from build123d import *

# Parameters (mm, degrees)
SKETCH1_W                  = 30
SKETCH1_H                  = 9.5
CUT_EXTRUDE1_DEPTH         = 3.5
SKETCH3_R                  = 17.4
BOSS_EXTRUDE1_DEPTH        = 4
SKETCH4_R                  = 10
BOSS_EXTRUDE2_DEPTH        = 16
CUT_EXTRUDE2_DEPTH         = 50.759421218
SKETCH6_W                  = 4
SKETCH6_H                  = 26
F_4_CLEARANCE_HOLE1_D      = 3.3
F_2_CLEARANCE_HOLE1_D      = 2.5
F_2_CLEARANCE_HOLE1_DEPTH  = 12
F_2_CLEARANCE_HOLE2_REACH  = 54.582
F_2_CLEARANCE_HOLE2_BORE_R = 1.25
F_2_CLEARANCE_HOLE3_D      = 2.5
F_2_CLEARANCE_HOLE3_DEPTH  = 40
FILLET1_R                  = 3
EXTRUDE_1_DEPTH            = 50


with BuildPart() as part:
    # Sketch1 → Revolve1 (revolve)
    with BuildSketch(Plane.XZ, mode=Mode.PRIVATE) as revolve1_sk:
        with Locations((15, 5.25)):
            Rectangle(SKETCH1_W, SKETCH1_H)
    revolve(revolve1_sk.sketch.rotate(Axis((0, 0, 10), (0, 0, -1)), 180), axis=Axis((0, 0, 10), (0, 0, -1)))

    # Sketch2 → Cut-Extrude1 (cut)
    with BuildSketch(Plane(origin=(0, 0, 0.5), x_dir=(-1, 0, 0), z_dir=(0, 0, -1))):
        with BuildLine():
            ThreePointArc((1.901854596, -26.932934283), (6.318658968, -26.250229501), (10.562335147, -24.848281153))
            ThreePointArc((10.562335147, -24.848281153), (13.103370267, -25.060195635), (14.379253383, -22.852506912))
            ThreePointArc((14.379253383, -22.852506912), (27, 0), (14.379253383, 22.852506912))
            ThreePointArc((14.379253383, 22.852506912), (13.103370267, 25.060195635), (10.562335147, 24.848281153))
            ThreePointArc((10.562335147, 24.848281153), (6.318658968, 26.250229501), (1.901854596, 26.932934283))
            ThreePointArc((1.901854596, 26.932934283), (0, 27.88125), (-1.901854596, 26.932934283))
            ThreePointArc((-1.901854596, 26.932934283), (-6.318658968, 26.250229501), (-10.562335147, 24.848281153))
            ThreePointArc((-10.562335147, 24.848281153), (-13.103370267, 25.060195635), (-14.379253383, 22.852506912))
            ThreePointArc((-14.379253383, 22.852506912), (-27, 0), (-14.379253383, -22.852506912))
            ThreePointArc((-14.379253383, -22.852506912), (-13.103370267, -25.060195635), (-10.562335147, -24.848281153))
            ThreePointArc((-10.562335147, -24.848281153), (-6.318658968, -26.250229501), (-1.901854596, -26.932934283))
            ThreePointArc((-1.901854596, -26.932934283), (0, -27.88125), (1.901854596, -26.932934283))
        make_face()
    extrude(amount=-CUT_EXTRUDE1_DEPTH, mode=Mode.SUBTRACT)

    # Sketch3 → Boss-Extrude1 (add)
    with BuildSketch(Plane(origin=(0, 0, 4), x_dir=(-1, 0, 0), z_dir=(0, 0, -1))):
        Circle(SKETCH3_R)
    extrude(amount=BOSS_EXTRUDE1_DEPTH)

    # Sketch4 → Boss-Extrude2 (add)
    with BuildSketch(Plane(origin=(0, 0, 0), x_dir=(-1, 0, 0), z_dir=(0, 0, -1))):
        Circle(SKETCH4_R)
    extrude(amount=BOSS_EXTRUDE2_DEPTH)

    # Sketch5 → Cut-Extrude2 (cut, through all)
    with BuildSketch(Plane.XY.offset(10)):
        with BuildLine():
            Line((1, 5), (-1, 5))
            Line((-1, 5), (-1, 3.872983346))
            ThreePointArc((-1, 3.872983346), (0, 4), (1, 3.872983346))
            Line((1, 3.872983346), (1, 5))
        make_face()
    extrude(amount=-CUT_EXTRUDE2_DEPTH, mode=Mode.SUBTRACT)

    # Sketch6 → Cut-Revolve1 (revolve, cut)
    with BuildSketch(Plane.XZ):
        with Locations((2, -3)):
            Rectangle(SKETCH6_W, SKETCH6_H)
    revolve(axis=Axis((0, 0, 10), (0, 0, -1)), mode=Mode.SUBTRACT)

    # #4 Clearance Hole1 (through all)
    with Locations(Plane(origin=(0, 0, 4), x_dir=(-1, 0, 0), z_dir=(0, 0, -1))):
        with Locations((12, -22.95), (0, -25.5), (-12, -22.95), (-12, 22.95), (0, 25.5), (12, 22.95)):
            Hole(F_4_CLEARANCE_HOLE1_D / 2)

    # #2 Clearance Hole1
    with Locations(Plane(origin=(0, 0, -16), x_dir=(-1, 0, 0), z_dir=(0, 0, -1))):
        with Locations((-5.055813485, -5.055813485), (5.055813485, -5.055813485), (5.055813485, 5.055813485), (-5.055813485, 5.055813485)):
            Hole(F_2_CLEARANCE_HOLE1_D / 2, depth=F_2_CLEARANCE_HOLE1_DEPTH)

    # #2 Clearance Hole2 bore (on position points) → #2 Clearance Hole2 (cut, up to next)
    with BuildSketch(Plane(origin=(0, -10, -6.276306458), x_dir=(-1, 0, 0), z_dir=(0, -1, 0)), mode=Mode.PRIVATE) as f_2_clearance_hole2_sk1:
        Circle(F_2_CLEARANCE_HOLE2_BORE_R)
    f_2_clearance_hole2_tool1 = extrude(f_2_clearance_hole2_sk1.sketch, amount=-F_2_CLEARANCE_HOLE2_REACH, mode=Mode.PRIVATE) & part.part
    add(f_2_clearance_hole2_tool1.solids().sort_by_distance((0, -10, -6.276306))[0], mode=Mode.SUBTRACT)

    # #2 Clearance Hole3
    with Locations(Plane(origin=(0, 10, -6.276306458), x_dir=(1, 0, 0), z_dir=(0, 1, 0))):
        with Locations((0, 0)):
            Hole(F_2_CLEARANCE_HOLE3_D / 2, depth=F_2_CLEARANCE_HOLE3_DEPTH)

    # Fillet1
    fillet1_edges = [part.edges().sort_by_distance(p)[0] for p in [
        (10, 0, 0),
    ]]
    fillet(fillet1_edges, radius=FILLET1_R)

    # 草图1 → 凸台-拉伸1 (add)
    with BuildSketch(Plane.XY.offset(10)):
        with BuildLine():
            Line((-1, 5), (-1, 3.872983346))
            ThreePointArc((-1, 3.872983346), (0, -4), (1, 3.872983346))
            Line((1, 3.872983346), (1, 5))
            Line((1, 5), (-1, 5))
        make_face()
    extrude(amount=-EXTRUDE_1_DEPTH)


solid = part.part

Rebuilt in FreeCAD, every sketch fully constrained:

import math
import FreeCAD as App
import Part
import Sketcher
from FreeCAD import Vector


def edges_at(feature, points):
    """Names of the edges that pass closest to the given points."""
    edges = feature.Shape.Edges
    near = lambda p: min(range(len(edges)), key=lambda i: edges[i].distToShape(Part.Vertex(*p))[0])
    return sorted({f"Edge{near(p) + 1}" for p in points})


def add_polygon(sketch, points):
    """Adds a closed chain of lines whose ends are joined by coincident constraints."""
    first, n = sketch.GeometryCount, len(points)
    for a, b in zip(points, points[1:] + points[:1]):
        sketch.addGeometry(Part.LineSegment(App.Vector(*a, 0), App.Vector(*b, 0)), False)
    for i in range(n):
        sketch.addConstraint(Sketcher.Constraint("Coincident", first + i, 2, first + (i + 1) % n, 1))

doc = App.newDocument("Part")
body = doc.addObject("PartDesign::Body", "Body")

sketch1 = body.newObject("Sketcher::SketchObject", "Sketch")
sketch1.AttachmentSupport = (doc.getObject("XZ_Plane"), [""])
sketch1.MapMode = "FlatFace"
add_polygon(sketch1, [(0, 10), (0, 0), (30, 0), (30, 10)])
sketch1.addConstraint([
    Sketcher.Constraint("Vertical", 0),
    Sketcher.Constraint("Horizontal", 1),
    Sketcher.Constraint("Vertical", 2),
    Sketcher.Constraint("Horizontal", 3),
    Sketcher.Constraint("PointOnObject", 0, 2, -2),
    Sketcher.Constraint("DistanceX", 1, 1, 1, 2, 30.0),
    Sketcher.Constraint("DistanceY", 0, 2, 0, 1, 9.5),
    Sketcher.Constraint("DistanceY", -1, 1, 2, 2, 10.0),
])
revolution = body.newObject("PartDesign::Revolution", "Revolution")
revolution.Profile = sketch1
revolution.ReferenceAxis = (sketch1, ["V_Axis"])
revolution.Angle = 360

sketch2 = body.newObject("Sketcher::SketchObject", "Sketch001")
sketch2.AttachmentSupport = (doc.getObject("XY_Plane"), [""])
sketch2.MapMode = "FlatFace"
sketch2.AttachmentOffset = App.Placement(Vector(0, 0, 0.5), App.Rotation())
sketch2.addGeometry([
    Part.ArcOfCircle(Part.Circle(Vector(0, 0, 0), Vector(0, 0, 1), 27), math.radians(-113.03), math.radians(-94.04)),
    Part.ArcOfCircle(Part.Circle(Vector(-12, -22.9, 0), Vector(0, 0, 1), 2.4), math.radians(178), math.radians(307)),
    Part.ArcOfCircle(Part.Circle(Vector(0, 0, 0), Vector(0, 0, 1), 27), math.radians(122), math.radians(238)),
    Part.ArcOfCircle(Part.Circle(Vector(-12, 22.9, 0), Vector(0, 0, 1), 2.4), math.radians(53), math.radians(182)),
    Part.ArcOfCircle(Part.Circle(Vector(0, 0, 0), Vector(0, 0, 1), 27), math.radians(94.04), math.radians(113.03)),
    Part.ArcOfCircle(Part.Circle(Vector(0, 25.5, 0), Vector(0, 0, 1), 2.4), math.radians(37), math.radians(143)),
    Part.ArcOfCircle(Part.Circle(Vector(0, 0, 0), Vector(0, 0, 1), 27), math.radians(66.97), math.radians(85.96)),
    Part.ArcOfCircle(Part.Circle(Vector(12, 22.9, 0), Vector(0, 0, 1), 2.4), math.radians(-2), math.radians(127)),
    Part.ArcOfCircle(Part.Circle(Vector(0, 0, 0), Vector(0, 0, 1), 27), math.radians(-58), math.radians(58)),
    Part.ArcOfCircle(Part.Circle(Vector(12, -22.9, 0), Vector(0, 0, 1), 2.4), math.radians(-127), math.radians(2)),
    Part.ArcOfCircle(Part.Circle(Vector(0, 0, 0), Vector(0, 0, 1), 27), math.radians(-85.96), math.radians(-66.97)),
    Part.ArcOfCircle(Part.Circle(Vector(0, -25.5, 0), Vector(0, 0, 1), 2.4), math.radians(-143), math.radians(-37)),
], False)
sketch2.addConstraint([
    Sketcher.Constraint("Coincident", 0, 1, 1, 2),
    Sketcher.Constraint("Coincident", 1, 1, 2, 2),
    Sketcher.Constraint("Coincident", 2, 1, 3, 2),
    Sketcher.Constraint("Coincident", 3, 1, 4, 2),
    Sketcher.Constraint("Coincident", 4, 1, 5, 2),
    Sketcher.Constraint("Coincident", 5, 1, 6, 2),
    Sketcher.Constraint("Coincident", 6, 1, 7, 2),
    Sketcher.Constraint("Coincident", 7, 1, 8, 2),
    Sketcher.Constraint("Coincident", 8, 1, 9, 2),
    Sketcher.Constraint("Coincident", 9, 1, 10, 2),
    Sketcher.Constraint("Coincident", 10, 1, 11, 2),
    Sketcher.Constraint("Coincident", 11, 1, 0, 2),
    Sketcher.Constraint("Coincident", 0, 3, -1, 1),
    Sketcher.Constraint("Coincident", 2, 3, -1, 1),
    Sketcher.Constraint("Coincident", 4, 3, -1, 1),
    Sketcher.Constraint("Coincident", 6, 3, -1, 1),
    Sketcher.Constraint("Coincident", 8, 3, -1, 1),
    Sketcher.Constraint("Coincident", 10, 3, -1, 1),
    Sketcher.Constraint("Equal", 0, 2),
    Sketcher.Constraint("Equal", 1, 3),
    Sketcher.Constraint("Equal", 2, 4),
    Sketcher.Constraint("Equal", 3, 5),
    Sketcher.Constraint("Equal", 4, 6),
    Sketcher.Constraint("Equal", 5, 7),
    Sketcher.Constraint("Equal", 6, 8),
    Sketcher.Constraint("Equal", 7, 9),
    Sketcher.Constraint("Equal", 8, 10),
    Sketcher.Constraint("Equal", 9, 11),
    Sketcher.Constraint("Symmetric", 1, 3, 7, 3, -1, 1),
    Sketcher.Constraint("Symmetric", 3, 3, 9, 3, -1, 1),
    Sketcher.Constraint("Symmetric", 5, 3, 11, 3, -1, 1),
    Sketcher.Constraint("Symmetric", 3, 3, 7, 3, -2),
    Sketcher.Constraint("PointOnObject", 5, 3, -2),
    Sketcher.Constraint("Radius", 0, 27.0),
    Sketcher.Constraint("DistanceX", 1, 3, -1, 1, 12.0),
    Sketcher.Constraint("DistanceY", -1, 1, 5, 3, 25.5),
    Sketcher.Constraint("DistanceY", 1, 3, 3, 3, 45.9),
    Sketcher.Constraint("Radius", 1, 2.38125),
])
pocket1 = body.newObject("PartDesign::Pocket", "Pocket")
pocket1.Profile = sketch2
pocket1.Length = 3.5
pocket1.Reversed = True

sketch3 = body.newObject("Sketcher::SketchObject", "Sketch002")
sketch3.AttachmentSupport = (doc.getObject("XY_Plane"), [""])
sketch3.MapMode = "FlatFace"
sketch3.AttachmentOffset = App.Placement(Vector(0, 0, 4), App.Rotation())
sketch3.addGeometry(Part.Circle(Vector(0, 0, 0), Vector(0, 0, 1), 17), False)
sketch3.addConstraint([
    Sketcher.Constraint("Coincident", 0, 3, -1, 1),
    Sketcher.Constraint("Diameter", 0, 34.8),
])
pad1 = body.newObject("PartDesign::Pad", "Pad")
pad1.Profile = sketch3
pad1.Length = 4
pad1.Reversed = True

sketch4 = body.newObject("Sketcher::SketchObject", "Sketch003")
sketch4.AttachmentSupport = (doc.getObject("XY_Plane"), [""])
sketch4.MapMode = "FlatFace"
sketch4.addGeometry(Part.Circle(Vector(0, 0, 0), Vector(0, 0, 1), 10), False)
sketch4.addConstraint([
    Sketcher.Constraint("Coincident", 0, 3, -1, 1),
    Sketcher.Constraint("Diameter", 0, 20.0),
])
pad2 = body.newObject("PartDesign::Pad", "Pad001")
pad2.Profile = sketch4
pad2.Length = 16
pad2.Reversed = True

sketch5 = body.newObject("Sketcher::SketchObject", "Sketch004")
sketch5.AttachmentSupport = (doc.getObject("XY_Plane"), [""])
sketch5.MapMode = "FlatFace"
sketch5.AttachmentOffset = App.Placement(Vector(0, 0, 10), App.Rotation())
sketch5.addGeometry([
    Part.LineSegment(Vector(1, 5, 0), Vector(-1, 5, 0)),
    Part.LineSegment(Vector(-1, 5, 0), Vector(-1, 3.9, 0)),
    Part.ArcOfCircle(Part.Circle(Vector(0, 0, 0), Vector(0, 0, 1), 4), math.radians(76), math.radians(104)),
    Part.LineSegment(Vector(1, 3.9, 0), Vector(1, 5, 0)),
], False)
sketch5.addConstraint([
    Sketcher.Constraint("Coincident", 0, 2, 1, 1),
    Sketcher.Constraint("Coincident", 1, 2, 2, 2),
    Sketcher.Constraint("Coincident", 2, 1, 3, 1),
    Sketcher.Constraint("Coincident", 3, 2, 0, 1),
    Sketcher.Constraint("Horizontal", 0),
    Sketcher.Constraint("Vertical", 1),
    Sketcher.Constraint("Vertical", 3),
    Sketcher.Constraint("Coincident", 2, 3, -1, 1),
    Sketcher.Constraint("Horizontal", 1, 2, 2, 1),
    Sketcher.Constraint("Radius", 2, 4.0),
    Sketcher.Constraint("DistanceX", 0, 2, 0, 1, 2.0),
    Sketcher.Constraint("DistanceY", -1, 1, 0, 2, 5.0),
])
pocket2 = body.newObject("PartDesign::Pocket", "Pocket001")
pocket2.Profile = sketch5
pocket2.Type = "ThroughAll"

sketch6 = body.newObject("Sketcher::SketchObject", "Sketch005")
sketch6.AttachmentSupport = (doc.getObject("XZ_Plane"), [""])
sketch6.MapMode = "FlatFace"
add_polygon(sketch6, [(0, 10), (0, -16), (4, -16), (4, 10)])
sketch6.addConstraint([
    Sketcher.Constraint("Vertical", 0),
    Sketcher.Constraint("Horizontal", 1),
    Sketcher.Constraint("Vertical", 2),
    Sketcher.Constraint("Horizontal", 3),
    Sketcher.Constraint("PointOnObject", 0, 2, -2),
    Sketcher.Constraint("DistanceX", 1, 1, 1, 2, 4.0),
    Sketcher.Constraint("DistanceY", 0, 2, 0, 1, 26.0),
    Sketcher.Constraint("DistanceY", 0, 2, -1, 1, 16.0),
])
groove = body.newObject("PartDesign::Groove", "Groove")
groove.Profile = sketch6
groove.ReferenceAxis = (sketch6, ["V_Axis"])
groove.Angle = 360

sketch7 = body.newObject("Sketcher::SketchObject", "Sketch006")
sketch7.AttachmentSupport = (doc.getObject("XY_Plane"), [""])
sketch7.MapMode = "FlatFace"
sketch7.AttachmentOffset = App.Placement(Vector(0, 0, 4), App.Rotation())
sketch7.addGeometry([
    Part.Circle(Vector(-12, -22.9, 0), Vector(0, 0, 1), 1.6),
    Part.Circle(Vector(0, -25.5, 0), Vector(0, 0, 1), 1.6),
    Part.Circle(Vector(12, -22.9, 0), Vector(0, 0, 1), 1.6),
    Part.Circle(Vector(12, 22.9, 0), Vector(0, 0, 1), 1.6),
    Part.Circle(Vector(0, 25.5, 0), Vector(0, 0, 1), 1.6),
    Part.Circle(Vector(-12, 22.9, 0), Vector(0, 0, 1), 1.6),
], False)
sketch7.addConstraint([
    Sketcher.Constraint("Equal", 0, 1),
    Sketcher.Constraint("Equal", 1, 2),
    Sketcher.Constraint("Equal", 2, 3),
    Sketcher.Constraint("Equal", 3, 4),
    Sketcher.Constraint("Equal", 4, 5),
    Sketcher.Constraint("Symmetric", 0, 3, 3, 3, -1, 1),
    Sketcher.Constraint("Symmetric", 1, 3, 4, 3, -1, 1),
    Sketcher.Constraint("Symmetric", 2, 3, 5, 3, -1, 1),
    Sketcher.Constraint("Symmetric", 0, 3, 2, 3, -2),
    Sketcher.Constraint("PointOnObject", 1, 3, -2),
    Sketcher.Constraint("Diameter", 0, 3.3),
    Sketcher.Constraint("DistanceX", 0, 3, -1, 1, 12.0),
    Sketcher.Constraint("DistanceY", 1, 3, 4, 3, 51.0),
    Sketcher.Constraint("DistanceY", 2, 3, 3, 3, 45.9),
])
doc.recompute()
hole = body.newObject("PartDesign::Hole", "Hole")
hole.Profile = sketch7
hole.ThreadType = "None"
hole.Diameter = 3.3
hole.DepthType = "ThroughAll"
hole.Reversed = True

sketch8 = body.newObject("Sketcher::SketchObject", "Sketch007")
sketch8.AttachmentSupport = (doc.getObject("XY_Plane"), [""])
sketch8.MapMode = "FlatFace"
sketch8.AttachmentOffset = App.Placement(Vector(0, 0, -16), App.Rotation())
sketch8.addGeometry([
    Part.Circle(Vector(5.1, -5.1, 0), Vector(0, 0, 1), 1.2),
    Part.Circle(Vector(-5.1, -5.1, 0), Vector(0, 0, 1), 1.2),
    Part.Circle(Vector(-5.1, 5.1, 0), Vector(0, 0, 1), 1.2),
    Part.Circle(Vector(5.1, 5.1, 0), Vector(0, 0, 1), 1.2),
], False)
sketch8.addConstraint([
    Sketcher.Constraint("Equal", 0, 1),
    Sketcher.Constraint("Equal", 1, 2),
    Sketcher.Constraint("Equal", 2, 3),
    Sketcher.Constraint("Symmetric", 0, 3, 2, 3, -1, 1),
    Sketcher.Constraint("Symmetric", 1, 3, 3, 3, -1, 1),
    Sketcher.Constraint("Symmetric", 0, 3, 1, 3, -2),
    Sketcher.Constraint("Diameter", 0, 2.5),
    Sketcher.Constraint("DistanceX", -1, 1, 0, 3, 5.055813),
    Sketcher.Constraint("DistanceY", 0, 3, -1, 1, 5.055813),
])
doc.recompute()
hole2 = body.newObject("PartDesign::Hole", "Hole001")
hole2.Profile = sketch8
hole2.ThreadType = "None"
hole2.Diameter = 2.5
hole2.DepthType = "Dimension"
hole2.Depth = 12
hole2.DrillPoint = "Flat"
hole2.Reversed = True

sketch9 = body.newObject("Sketcher::SketchObject", "Sketch008")
sketch9.AttachmentSupport = (doc.getObject("XZ_Plane"), [""])
sketch9.MapMode = "FlatFace"
sketch9.AttachmentOffset = App.Placement(Vector(0, 0, 10), App.Rotation())
sketch9.addGeometry(Part.Circle(Vector(0, -6.3, 0), Vector(0, 0, 1), 1.2), False)
sketch9.addConstraint([
    Sketcher.Constraint("PointOnObject", 0, 3, -2),
    Sketcher.Constraint("Diameter", 0, 2.5),
    Sketcher.Constraint("DistanceY", 0, 3, -1, 1, 6.276306),
])
pocket3 = body.newObject("PartDesign::Pocket", "Pocket002")
pocket3.Profile = sketch9
pocket3.Type = "UpToFirst"

sketch10 = body.newObject("Sketcher::SketchObject", "Sketch009")
sketch10.AttachmentSupport = (doc.getObject("XZ_Plane"), [""])
sketch10.MapMode = "FlatFace"
sketch10.AttachmentOffset = App.Placement(Vector(0, 0, -10), App.Rotation())
sketch10.addGeometry(Part.Circle(Vector(0, -6.3, 0), Vector(0, 0, 1), 1.2), False)
sketch10.addConstraint([
    Sketcher.Constraint("PointOnObject", 0, 3, -2),
    Sketcher.Constraint("Diameter", 0, 2.5),
    Sketcher.Constraint("DistanceY", 0, 3, -1, 1, 6.276306),
])
doc.recompute()
hole3 = body.newObject("PartDesign::Hole", "Hole002")
hole3.Profile = sketch10
hole3.ThreadType = "None"
hole3.Diameter = 2.5
hole3.DepthType = "Dimension"
hole3.Depth = 40
hole3.DrillPoint = "Flat"
hole3.Reversed = True
doc.recompute()

fillet = body.newObject("PartDesign::Fillet", "Fillet")
fillet.Base = (hole3, edges_at(hole3, [(10, 0, 0)]))
fillet.Radius = 3

sketch11 = body.newObject("Sketcher::SketchObject", "Sketch010")
sketch11.AttachmentSupport = (doc.getObject("XY_Plane"), [""])
sketch11.MapMode = "FlatFace"
sketch11.AttachmentOffset = App.Placement(Vector(0, 0, 10), App.Rotation())
sketch11.addGeometry([
    Part.LineSegment(Vector(-1, 5, 0), Vector(-1, 3.9, 0)),
    Part.ArcOfCircle(Part.Circle(Vector(0, 0, 0), Vector(0, 0, 1), 4), math.radians(104), math.radians(436)),
    Part.LineSegment(Vector(1, 3.9, 0), Vector(1, 5, 0)),
    Part.LineSegment(Vector(1, 5, 0), Vector(-1, 5, 0)),
], False)
sketch11.addConstraint([
    Sketcher.Constraint("Coincident", 0, 2, 1, 1),
    Sketcher.Constraint("Coincident", 1, 2, 2, 1),
    Sketcher.Constraint("Coincident", 2, 2, 3, 1),
    Sketcher.Constraint("Coincident", 3, 2, 0, 1),
    Sketcher.Constraint("Vertical", 0),
    Sketcher.Constraint("Vertical", 2),
    Sketcher.Constraint("Horizontal", 3),
    Sketcher.Constraint("Coincident", 1, 3, -1, 1),
    Sketcher.Constraint("Horizontal", 0, 2, 1, 2),
    Sketcher.Constraint("Radius", 1, 4.0),
    Sketcher.Constraint("DistanceX", 3, 2, 3, 1, 2.0),
    Sketcher.Constraint("DistanceY", -1, 1, 2, 2, 5.0),
])
pad3 = body.newObject("PartDesign::Pad", "Pad002")
pad3.Profile = sketch11
pad3.Length = 50
pad3.Reversed = True

doc.recompute()
